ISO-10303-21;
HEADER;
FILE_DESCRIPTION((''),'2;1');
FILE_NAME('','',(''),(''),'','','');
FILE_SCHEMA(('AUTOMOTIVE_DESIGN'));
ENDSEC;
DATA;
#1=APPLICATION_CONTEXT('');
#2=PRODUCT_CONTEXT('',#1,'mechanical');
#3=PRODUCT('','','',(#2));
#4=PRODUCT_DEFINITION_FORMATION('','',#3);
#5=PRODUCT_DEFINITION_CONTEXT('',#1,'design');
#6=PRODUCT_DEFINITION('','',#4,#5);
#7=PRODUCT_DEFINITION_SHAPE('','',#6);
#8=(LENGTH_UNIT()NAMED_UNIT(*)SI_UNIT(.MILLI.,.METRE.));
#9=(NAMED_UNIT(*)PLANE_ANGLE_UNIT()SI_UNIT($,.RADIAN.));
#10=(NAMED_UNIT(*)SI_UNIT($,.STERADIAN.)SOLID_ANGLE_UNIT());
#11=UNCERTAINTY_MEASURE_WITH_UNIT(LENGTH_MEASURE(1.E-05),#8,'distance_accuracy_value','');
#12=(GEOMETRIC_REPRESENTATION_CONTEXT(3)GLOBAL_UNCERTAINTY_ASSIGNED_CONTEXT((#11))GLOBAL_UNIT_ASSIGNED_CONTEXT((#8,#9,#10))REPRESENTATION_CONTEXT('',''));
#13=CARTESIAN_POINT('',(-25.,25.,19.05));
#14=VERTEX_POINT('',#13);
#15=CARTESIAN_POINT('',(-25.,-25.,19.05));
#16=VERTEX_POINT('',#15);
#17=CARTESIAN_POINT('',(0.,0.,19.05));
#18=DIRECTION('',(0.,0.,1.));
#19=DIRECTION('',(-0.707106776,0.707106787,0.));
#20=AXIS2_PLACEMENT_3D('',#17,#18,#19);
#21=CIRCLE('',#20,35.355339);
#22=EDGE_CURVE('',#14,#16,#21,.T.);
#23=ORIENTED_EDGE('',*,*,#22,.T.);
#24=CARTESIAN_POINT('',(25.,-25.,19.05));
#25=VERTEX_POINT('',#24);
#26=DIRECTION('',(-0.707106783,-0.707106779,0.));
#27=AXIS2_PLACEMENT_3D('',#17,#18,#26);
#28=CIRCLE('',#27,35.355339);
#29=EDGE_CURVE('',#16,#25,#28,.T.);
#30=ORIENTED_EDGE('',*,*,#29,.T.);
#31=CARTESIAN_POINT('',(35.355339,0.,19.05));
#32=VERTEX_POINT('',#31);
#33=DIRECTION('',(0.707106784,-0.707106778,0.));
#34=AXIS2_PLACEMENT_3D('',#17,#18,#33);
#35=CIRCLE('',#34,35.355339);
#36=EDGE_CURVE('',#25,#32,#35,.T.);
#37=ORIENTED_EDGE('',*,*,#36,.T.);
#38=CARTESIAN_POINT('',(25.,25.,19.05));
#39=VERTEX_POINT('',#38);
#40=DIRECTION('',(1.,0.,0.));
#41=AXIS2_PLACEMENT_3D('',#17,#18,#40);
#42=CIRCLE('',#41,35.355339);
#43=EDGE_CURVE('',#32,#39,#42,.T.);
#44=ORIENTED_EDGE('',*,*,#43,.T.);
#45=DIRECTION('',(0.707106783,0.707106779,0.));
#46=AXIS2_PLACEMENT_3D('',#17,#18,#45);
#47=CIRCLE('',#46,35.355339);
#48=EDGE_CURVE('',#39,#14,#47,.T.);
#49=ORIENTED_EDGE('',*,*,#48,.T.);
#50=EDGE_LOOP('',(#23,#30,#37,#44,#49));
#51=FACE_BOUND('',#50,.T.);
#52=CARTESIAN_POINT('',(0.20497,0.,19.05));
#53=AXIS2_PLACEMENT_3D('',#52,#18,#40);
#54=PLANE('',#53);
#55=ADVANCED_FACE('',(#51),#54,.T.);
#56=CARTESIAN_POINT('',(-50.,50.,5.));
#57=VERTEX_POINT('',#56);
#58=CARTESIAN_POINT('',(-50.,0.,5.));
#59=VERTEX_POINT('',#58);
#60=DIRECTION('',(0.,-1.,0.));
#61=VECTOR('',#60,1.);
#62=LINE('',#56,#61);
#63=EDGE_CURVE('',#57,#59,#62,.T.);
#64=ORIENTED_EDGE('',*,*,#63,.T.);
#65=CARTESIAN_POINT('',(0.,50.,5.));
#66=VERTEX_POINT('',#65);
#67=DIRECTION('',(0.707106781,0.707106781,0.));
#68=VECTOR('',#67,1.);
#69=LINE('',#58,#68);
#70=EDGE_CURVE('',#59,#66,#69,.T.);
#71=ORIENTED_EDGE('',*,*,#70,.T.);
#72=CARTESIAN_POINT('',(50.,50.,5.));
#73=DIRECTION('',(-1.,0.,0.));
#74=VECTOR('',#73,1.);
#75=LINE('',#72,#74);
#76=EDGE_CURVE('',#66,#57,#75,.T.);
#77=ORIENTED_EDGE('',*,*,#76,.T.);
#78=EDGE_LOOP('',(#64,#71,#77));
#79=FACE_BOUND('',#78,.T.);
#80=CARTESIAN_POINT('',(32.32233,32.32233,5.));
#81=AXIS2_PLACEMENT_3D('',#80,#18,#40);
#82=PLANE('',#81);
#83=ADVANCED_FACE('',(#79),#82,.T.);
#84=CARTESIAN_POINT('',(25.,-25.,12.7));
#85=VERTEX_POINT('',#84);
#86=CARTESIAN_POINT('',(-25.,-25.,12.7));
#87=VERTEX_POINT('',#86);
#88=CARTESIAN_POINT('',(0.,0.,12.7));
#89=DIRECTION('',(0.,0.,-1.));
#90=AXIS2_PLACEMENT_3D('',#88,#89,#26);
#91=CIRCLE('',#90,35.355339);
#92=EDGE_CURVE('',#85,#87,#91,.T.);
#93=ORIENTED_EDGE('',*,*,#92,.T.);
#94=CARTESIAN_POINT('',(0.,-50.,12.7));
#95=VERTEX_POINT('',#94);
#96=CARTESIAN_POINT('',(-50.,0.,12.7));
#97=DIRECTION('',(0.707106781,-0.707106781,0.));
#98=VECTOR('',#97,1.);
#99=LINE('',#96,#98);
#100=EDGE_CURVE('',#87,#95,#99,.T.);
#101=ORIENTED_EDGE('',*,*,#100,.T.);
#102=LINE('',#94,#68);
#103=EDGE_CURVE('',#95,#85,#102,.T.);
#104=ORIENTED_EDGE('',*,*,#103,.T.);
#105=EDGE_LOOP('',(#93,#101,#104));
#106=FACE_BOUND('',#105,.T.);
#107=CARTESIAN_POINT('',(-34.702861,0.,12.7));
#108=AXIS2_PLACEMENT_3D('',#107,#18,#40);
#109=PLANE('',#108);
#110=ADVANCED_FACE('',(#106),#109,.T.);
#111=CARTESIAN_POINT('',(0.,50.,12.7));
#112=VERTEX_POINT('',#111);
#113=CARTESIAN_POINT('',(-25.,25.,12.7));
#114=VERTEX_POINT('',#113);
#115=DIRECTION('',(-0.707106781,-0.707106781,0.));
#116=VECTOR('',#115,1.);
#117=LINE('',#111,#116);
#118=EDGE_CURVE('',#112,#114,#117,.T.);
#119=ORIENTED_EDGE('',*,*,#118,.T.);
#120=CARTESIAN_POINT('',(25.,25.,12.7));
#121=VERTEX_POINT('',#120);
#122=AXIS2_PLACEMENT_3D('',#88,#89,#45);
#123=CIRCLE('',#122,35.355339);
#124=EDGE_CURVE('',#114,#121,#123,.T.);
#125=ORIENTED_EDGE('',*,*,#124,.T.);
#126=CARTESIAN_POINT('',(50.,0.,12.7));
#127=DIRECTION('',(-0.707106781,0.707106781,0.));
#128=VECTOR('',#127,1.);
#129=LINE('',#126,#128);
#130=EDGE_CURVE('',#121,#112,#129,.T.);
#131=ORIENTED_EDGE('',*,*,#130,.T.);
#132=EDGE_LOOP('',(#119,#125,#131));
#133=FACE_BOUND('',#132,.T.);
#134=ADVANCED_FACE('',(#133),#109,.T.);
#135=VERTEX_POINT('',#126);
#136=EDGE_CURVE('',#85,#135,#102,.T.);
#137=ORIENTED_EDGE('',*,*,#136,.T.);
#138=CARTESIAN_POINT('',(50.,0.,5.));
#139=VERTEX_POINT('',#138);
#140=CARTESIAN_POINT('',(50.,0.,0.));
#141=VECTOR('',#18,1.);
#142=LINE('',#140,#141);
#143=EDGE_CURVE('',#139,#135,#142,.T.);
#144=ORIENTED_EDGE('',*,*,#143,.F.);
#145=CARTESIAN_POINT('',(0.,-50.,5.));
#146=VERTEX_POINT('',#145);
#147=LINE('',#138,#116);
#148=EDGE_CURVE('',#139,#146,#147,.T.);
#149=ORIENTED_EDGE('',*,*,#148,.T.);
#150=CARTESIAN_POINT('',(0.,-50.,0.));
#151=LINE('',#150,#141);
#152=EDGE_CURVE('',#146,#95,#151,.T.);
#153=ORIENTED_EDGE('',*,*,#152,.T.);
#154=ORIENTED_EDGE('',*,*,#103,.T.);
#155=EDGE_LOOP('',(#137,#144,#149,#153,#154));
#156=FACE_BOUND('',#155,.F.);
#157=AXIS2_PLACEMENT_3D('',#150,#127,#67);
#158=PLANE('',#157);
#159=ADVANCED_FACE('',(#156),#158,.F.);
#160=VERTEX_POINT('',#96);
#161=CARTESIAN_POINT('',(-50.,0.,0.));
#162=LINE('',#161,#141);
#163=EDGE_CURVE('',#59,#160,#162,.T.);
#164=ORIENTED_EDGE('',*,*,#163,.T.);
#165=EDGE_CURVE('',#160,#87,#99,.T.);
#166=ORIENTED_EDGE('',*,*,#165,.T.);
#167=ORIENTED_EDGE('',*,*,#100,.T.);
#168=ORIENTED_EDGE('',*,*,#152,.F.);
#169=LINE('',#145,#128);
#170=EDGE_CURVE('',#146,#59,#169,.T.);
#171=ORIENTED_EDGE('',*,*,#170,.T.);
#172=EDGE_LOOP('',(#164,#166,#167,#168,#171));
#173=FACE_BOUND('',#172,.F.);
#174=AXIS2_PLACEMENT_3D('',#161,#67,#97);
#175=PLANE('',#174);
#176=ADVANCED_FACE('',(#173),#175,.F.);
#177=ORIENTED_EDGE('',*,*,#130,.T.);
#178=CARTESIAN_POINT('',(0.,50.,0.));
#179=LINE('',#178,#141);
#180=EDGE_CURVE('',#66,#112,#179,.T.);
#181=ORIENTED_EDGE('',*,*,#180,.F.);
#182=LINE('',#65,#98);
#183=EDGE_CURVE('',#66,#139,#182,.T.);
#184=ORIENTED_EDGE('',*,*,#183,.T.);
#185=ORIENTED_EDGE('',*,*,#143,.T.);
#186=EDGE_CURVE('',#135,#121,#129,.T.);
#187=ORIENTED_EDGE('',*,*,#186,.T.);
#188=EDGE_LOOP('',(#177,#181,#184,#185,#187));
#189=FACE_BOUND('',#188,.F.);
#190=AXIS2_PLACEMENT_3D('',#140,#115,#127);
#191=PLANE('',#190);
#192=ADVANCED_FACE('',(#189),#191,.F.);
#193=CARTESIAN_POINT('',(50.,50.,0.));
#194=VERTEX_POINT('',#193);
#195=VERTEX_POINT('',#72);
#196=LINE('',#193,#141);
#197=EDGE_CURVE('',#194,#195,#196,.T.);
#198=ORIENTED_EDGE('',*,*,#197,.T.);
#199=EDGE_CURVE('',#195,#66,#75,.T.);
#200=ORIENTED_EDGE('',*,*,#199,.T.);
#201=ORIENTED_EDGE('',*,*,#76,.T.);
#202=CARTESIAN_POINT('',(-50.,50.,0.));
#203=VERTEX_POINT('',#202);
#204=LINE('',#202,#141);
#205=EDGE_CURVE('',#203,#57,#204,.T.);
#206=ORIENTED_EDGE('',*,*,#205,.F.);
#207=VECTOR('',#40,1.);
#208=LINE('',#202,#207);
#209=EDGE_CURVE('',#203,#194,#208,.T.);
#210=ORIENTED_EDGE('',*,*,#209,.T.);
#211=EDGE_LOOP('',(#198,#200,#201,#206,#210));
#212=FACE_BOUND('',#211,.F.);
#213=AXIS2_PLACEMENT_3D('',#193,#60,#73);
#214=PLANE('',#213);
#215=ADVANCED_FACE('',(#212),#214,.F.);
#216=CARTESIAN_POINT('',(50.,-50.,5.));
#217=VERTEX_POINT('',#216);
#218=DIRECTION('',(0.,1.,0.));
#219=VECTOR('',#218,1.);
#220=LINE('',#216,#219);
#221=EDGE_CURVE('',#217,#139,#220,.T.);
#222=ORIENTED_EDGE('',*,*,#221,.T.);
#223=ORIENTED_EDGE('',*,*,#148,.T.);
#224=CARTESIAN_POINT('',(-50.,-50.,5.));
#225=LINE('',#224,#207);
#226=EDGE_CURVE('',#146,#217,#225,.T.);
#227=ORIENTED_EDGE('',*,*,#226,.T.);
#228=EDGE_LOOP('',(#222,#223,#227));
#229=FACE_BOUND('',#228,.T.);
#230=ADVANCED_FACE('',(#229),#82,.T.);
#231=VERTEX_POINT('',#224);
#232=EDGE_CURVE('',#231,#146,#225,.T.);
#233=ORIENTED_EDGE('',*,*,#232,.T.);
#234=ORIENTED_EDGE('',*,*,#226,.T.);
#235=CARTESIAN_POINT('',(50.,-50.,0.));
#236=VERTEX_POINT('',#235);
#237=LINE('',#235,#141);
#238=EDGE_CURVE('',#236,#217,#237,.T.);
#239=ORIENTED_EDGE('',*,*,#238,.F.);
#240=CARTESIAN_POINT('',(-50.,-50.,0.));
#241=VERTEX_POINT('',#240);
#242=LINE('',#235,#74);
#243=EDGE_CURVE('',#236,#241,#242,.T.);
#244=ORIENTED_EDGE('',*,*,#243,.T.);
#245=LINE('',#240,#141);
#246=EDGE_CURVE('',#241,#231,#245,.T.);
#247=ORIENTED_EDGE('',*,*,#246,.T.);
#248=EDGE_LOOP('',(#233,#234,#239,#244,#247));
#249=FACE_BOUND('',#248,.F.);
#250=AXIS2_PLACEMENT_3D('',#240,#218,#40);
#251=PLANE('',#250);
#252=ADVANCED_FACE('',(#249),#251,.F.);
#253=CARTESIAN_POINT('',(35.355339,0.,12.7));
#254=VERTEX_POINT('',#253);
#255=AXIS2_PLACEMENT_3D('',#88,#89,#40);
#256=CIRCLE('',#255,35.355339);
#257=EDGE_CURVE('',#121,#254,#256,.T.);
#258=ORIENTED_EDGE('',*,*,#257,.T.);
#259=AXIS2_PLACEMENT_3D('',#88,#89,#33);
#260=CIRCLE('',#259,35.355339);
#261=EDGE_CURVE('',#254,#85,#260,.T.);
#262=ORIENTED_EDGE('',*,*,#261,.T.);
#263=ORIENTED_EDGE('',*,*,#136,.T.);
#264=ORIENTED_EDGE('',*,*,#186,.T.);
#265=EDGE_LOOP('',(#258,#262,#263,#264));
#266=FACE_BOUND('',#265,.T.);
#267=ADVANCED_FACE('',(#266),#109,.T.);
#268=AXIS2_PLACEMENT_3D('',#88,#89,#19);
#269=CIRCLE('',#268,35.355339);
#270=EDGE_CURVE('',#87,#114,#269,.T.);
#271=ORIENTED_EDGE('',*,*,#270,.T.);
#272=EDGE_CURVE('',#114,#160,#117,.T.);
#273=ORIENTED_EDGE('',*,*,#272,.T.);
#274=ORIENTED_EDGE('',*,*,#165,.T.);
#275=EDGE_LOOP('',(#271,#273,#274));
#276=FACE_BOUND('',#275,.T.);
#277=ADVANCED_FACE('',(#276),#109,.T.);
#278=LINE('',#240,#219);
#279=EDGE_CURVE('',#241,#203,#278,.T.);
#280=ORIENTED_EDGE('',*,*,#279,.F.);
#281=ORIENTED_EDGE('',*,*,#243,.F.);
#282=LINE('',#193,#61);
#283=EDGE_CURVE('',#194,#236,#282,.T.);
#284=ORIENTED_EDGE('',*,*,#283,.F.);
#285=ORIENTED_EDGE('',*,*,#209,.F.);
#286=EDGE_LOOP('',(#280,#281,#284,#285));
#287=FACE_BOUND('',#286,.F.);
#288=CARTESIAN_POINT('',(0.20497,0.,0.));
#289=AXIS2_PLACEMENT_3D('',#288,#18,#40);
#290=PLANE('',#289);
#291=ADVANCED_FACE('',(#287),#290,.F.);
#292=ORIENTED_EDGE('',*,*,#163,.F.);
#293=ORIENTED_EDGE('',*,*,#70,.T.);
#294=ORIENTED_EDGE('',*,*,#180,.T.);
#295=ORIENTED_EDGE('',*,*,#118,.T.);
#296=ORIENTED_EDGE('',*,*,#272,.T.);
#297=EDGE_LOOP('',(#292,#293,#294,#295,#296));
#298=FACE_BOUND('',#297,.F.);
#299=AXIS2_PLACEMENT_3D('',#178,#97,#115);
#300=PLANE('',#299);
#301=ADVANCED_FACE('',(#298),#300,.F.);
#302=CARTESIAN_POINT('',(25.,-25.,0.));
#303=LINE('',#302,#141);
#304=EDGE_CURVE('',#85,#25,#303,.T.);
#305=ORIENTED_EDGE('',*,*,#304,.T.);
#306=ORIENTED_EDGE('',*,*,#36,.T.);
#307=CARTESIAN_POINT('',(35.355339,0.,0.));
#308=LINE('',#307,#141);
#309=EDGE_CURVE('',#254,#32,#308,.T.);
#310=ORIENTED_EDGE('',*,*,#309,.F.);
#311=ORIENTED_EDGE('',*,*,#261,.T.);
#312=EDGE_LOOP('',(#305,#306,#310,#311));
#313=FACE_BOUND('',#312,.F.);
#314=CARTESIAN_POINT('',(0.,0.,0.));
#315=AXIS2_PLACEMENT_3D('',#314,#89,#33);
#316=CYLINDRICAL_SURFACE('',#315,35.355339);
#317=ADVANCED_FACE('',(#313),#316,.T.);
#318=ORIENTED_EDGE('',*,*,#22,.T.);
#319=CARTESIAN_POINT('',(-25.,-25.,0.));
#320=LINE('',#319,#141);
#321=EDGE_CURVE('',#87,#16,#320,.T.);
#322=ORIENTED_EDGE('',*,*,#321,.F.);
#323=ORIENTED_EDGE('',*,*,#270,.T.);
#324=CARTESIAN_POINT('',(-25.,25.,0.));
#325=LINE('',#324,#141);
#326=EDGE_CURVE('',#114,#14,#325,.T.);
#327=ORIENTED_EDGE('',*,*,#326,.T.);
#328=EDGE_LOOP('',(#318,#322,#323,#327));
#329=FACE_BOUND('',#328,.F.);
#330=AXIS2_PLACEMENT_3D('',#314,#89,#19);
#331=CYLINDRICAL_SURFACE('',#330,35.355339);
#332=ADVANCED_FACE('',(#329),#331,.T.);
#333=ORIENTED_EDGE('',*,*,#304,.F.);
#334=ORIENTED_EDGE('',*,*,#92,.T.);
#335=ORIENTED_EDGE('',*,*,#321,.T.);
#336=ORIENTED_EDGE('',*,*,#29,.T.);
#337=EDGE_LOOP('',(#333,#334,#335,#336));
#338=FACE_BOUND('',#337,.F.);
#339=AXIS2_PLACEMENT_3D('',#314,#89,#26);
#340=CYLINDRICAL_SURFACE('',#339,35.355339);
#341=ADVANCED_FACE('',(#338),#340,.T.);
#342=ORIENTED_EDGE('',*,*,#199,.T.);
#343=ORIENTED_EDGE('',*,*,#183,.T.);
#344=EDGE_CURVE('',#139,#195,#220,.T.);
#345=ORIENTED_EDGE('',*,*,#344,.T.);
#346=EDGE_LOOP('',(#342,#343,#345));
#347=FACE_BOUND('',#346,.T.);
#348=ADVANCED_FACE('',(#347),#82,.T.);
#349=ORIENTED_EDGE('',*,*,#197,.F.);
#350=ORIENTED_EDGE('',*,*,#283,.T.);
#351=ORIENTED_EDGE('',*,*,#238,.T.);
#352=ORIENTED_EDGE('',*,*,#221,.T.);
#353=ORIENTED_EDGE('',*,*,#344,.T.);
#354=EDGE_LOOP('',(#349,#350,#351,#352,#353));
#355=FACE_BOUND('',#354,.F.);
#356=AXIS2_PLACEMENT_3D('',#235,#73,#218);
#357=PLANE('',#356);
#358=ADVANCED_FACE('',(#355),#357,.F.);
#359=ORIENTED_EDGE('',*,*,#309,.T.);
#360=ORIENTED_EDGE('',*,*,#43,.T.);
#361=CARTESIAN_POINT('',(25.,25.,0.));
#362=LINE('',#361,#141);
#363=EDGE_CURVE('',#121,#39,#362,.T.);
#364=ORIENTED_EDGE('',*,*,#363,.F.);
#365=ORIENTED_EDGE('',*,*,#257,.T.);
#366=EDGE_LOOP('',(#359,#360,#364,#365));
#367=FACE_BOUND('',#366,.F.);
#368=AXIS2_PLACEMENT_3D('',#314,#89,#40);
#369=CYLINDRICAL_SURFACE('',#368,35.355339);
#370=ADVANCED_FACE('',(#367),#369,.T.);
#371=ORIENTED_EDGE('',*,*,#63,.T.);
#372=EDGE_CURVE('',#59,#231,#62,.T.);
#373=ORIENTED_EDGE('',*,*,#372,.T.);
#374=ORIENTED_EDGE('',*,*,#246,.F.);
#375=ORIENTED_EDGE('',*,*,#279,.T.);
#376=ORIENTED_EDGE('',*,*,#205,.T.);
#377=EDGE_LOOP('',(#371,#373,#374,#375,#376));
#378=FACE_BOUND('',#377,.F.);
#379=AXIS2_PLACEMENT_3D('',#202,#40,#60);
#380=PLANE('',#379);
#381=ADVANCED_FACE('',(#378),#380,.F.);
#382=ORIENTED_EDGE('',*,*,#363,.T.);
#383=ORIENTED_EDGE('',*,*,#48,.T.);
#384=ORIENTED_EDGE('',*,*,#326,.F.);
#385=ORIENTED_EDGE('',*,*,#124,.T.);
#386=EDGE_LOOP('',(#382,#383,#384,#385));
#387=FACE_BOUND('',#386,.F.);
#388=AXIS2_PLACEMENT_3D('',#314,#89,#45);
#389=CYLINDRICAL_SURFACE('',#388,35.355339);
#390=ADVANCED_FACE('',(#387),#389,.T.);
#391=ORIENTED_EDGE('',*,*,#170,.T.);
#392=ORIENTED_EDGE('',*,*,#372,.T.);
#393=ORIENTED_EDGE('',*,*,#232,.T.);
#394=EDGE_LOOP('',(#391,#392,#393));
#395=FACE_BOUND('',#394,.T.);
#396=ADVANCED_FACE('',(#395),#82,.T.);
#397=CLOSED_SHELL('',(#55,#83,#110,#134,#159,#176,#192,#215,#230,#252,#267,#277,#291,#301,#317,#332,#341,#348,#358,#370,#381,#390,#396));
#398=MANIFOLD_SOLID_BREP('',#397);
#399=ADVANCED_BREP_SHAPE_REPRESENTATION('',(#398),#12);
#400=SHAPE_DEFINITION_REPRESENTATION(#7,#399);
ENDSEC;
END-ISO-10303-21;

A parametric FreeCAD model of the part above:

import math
import FreeCAD as App
import Part
import Sketcher
Q = App.Units.Quantity

doc = App.newDocument("Part")
body = doc.addObject("PartDesign::Body", "Body")

# Sketch on XY plane
sketch1 = doc.addObject("Sketcher::SketchObject", "Sketch")
body.addObject(sketch1)
sketch1.AttachmentSupport = (doc.XY_Plane, [""])
sketch1.MapMode = "FlatFace"
sketch1.addGeometry([
    Part.LineSegment(App.Vector(-50, -50, 0), App.Vector(50, -50, 0)),
    Part.LineSegment(App.Vector(50, -50, 0), App.Vector(50, 50, 0)),
    Part.LineSegment(App.Vector(50, 50, 0), App.Vector(-50, 50, 0)),
    Part.LineSegment(App.Vector(-50, 50, 0), App.Vector(-50, -50, 0)),
], False)
sketch1.addConstraint([
    Sketcher.Constraint("Coincident", 0, 2, 1, 1),
    Sketcher.Constraint("Coincident", 1, 2, 2, 1),
    Sketcher.Constraint("Coincident", 2, 2, 3, 1),
    Sketcher.Constraint("Coincident", 3, 2, 0, 1),
    Sketcher.Constraint("Horizontal", 0),
    Sketcher.Constraint("Vertical", 1),
    Sketcher.Constraint("Horizontal", 2),
    Sketcher.Constraint("Vertical", 3),
    Sketcher.Constraint("Symmetric", 0, 2, 2, 2, -1, 1),
    Sketcher.Constraint("Equal", 2, 1),
    Sketcher.Constraint("DistanceX", 0, 1, 0, 2, Q("100 mm")),
])
pad1 = doc.addObject("PartDesign::Pad", "Pad")
body.addObject(pad1)
pad1.Profile = sketch1
pad1.Length = 5

# Sketch on XY plane
sketch2 = doc.addObject("Sketcher::SketchObject", "Sketch001")
body.addObject(sketch2)
sketch2.AttachmentSupport = (doc.XY_Plane, [""])
sketch2.MapMode = "FlatFace"
sketch2.addGeometry([
    Part.LineSegment(App.Vector(-50, 0, 0), App.Vector(0, -50, 0)),
    Part.LineSegment(App.Vector(0, -50, 0), App.Vector(50, 0, 0)),
    Part.LineSegment(App.Vector(50, 0, 0), App.Vector(0, 50, 0)),
    Part.LineSegment(App.Vector(0, 50, 0), App.Vector(-50, 0, 0)),
], False)
sketch2.addConstraint([
    Sketcher.Constraint("Coincident", 0, 2, 1, 1),
    Sketcher.Constraint("Coincident", 1, 2, 2, 1),
    Sketcher.Constraint("Coincident", 2, 2, 3, 1),
    Sketcher.Constraint("Coincident", 3, 2, 0, 1),
    Sketcher.Constraint("Symmetric", 0, 2, 2, 2, -1, 1),
    Sketcher.Constraint("Symmetric", 1, 2, 3, 2, -1, 1),
    Sketcher.Constraint("PointOnObject", 0, 2, -2),
    Sketcher.Constraint("PointOnObject", 1, 2, -1),
    Sketcher.Constraint("Perpendicular", 0, 1),
    Sketcher.Constraint("DistanceY", 0, 2, -1, 1, Q("50 mm")),
])
pad2 = doc.addObject("PartDesign::Pad", "Pad001")
body.addObject(pad2)
pad2.Profile = sketch2
pad2.Length = 12.7

# Sketch on XY plane
sketch3 = doc.addObject("Sketcher::SketchObject", "Sketch002")
body.addObject(sketch3)
sketch3.AttachmentSupport = (doc.XY_Plane, [""])
sketch3.MapMode = "FlatFace"
sketch3.addGeometry([
    Part.ArcOfCircle(Part.Circle(App.Vector(0, 0, 0), App.Vector(0, 0, 1), 35), math.radians(45), math.radians(135)),  # 0
    Part.ArcOfCircle(Part.Circle(App.Vector(0, 0, 0), App.Vector(0, 0, 1), 35), math.radians(135), math.radians(225)),  # 1
    Part.ArcOfCircle(Part.Circle(App.Vector(0, 0, 0), App.Vector(0, 0, 1), 35), math.radians(-135), math.radians(-45)),  # 2
    Part.ArcOfCircle(Part.Circle(App.Vector(0, 0, 0), App.Vector(0, 0, 1), 35), math.radians(-45), math.radians(0)),  # 3
    Part.ArcOfCircle(Part.Circle(App.Vector(0, 0, 0), App.Vector(0, 0, 1), 35), math.radians(0), math.radians(45)),  # 4
], False)
sketch3.addConstraint([
    Sketcher.Constraint("Tangent", 0, 2, 1, 1),
    Sketcher.Constraint("Tangent", 1, 2, 2, 1),
    Sketcher.Constraint("Tangent", 2, 2, 3, 1),
    Sketcher.Constraint("Tangent", 3, 2, 4, 1),
    Sketcher.Constraint("Tangent", 4, 2, 0, 1),
    Sketcher.Constraint("Coincident", 0, 3, -1, 1),
    Sketcher.Constraint("Coincident", 2, 3, -1, 1),
    Sketcher.Constraint("PointOnObject", 3, 2, -1),
    Sketcher.Constraint("Horizontal", 1, 2, 2, 2),
    Sketcher.Constraint("Horizontal", 0, 2, 4, 2),
    Sketcher.Constraint("Vertical", 0, 2, 1, 2),
    Sketcher.Constraint("DistanceX", 0, 2, -1, 1, Q("25 mm")),
    Sketcher.Constraint("DistanceY", -1, 1, 0, 2, Q("25 mm")),
])
pad3 = doc.addObject("PartDesign::Pad", "Pad002")
body.addObject(pad3)
pad3.Profile = sketch3
pad3.Length = 19.05

doc.recompute()
